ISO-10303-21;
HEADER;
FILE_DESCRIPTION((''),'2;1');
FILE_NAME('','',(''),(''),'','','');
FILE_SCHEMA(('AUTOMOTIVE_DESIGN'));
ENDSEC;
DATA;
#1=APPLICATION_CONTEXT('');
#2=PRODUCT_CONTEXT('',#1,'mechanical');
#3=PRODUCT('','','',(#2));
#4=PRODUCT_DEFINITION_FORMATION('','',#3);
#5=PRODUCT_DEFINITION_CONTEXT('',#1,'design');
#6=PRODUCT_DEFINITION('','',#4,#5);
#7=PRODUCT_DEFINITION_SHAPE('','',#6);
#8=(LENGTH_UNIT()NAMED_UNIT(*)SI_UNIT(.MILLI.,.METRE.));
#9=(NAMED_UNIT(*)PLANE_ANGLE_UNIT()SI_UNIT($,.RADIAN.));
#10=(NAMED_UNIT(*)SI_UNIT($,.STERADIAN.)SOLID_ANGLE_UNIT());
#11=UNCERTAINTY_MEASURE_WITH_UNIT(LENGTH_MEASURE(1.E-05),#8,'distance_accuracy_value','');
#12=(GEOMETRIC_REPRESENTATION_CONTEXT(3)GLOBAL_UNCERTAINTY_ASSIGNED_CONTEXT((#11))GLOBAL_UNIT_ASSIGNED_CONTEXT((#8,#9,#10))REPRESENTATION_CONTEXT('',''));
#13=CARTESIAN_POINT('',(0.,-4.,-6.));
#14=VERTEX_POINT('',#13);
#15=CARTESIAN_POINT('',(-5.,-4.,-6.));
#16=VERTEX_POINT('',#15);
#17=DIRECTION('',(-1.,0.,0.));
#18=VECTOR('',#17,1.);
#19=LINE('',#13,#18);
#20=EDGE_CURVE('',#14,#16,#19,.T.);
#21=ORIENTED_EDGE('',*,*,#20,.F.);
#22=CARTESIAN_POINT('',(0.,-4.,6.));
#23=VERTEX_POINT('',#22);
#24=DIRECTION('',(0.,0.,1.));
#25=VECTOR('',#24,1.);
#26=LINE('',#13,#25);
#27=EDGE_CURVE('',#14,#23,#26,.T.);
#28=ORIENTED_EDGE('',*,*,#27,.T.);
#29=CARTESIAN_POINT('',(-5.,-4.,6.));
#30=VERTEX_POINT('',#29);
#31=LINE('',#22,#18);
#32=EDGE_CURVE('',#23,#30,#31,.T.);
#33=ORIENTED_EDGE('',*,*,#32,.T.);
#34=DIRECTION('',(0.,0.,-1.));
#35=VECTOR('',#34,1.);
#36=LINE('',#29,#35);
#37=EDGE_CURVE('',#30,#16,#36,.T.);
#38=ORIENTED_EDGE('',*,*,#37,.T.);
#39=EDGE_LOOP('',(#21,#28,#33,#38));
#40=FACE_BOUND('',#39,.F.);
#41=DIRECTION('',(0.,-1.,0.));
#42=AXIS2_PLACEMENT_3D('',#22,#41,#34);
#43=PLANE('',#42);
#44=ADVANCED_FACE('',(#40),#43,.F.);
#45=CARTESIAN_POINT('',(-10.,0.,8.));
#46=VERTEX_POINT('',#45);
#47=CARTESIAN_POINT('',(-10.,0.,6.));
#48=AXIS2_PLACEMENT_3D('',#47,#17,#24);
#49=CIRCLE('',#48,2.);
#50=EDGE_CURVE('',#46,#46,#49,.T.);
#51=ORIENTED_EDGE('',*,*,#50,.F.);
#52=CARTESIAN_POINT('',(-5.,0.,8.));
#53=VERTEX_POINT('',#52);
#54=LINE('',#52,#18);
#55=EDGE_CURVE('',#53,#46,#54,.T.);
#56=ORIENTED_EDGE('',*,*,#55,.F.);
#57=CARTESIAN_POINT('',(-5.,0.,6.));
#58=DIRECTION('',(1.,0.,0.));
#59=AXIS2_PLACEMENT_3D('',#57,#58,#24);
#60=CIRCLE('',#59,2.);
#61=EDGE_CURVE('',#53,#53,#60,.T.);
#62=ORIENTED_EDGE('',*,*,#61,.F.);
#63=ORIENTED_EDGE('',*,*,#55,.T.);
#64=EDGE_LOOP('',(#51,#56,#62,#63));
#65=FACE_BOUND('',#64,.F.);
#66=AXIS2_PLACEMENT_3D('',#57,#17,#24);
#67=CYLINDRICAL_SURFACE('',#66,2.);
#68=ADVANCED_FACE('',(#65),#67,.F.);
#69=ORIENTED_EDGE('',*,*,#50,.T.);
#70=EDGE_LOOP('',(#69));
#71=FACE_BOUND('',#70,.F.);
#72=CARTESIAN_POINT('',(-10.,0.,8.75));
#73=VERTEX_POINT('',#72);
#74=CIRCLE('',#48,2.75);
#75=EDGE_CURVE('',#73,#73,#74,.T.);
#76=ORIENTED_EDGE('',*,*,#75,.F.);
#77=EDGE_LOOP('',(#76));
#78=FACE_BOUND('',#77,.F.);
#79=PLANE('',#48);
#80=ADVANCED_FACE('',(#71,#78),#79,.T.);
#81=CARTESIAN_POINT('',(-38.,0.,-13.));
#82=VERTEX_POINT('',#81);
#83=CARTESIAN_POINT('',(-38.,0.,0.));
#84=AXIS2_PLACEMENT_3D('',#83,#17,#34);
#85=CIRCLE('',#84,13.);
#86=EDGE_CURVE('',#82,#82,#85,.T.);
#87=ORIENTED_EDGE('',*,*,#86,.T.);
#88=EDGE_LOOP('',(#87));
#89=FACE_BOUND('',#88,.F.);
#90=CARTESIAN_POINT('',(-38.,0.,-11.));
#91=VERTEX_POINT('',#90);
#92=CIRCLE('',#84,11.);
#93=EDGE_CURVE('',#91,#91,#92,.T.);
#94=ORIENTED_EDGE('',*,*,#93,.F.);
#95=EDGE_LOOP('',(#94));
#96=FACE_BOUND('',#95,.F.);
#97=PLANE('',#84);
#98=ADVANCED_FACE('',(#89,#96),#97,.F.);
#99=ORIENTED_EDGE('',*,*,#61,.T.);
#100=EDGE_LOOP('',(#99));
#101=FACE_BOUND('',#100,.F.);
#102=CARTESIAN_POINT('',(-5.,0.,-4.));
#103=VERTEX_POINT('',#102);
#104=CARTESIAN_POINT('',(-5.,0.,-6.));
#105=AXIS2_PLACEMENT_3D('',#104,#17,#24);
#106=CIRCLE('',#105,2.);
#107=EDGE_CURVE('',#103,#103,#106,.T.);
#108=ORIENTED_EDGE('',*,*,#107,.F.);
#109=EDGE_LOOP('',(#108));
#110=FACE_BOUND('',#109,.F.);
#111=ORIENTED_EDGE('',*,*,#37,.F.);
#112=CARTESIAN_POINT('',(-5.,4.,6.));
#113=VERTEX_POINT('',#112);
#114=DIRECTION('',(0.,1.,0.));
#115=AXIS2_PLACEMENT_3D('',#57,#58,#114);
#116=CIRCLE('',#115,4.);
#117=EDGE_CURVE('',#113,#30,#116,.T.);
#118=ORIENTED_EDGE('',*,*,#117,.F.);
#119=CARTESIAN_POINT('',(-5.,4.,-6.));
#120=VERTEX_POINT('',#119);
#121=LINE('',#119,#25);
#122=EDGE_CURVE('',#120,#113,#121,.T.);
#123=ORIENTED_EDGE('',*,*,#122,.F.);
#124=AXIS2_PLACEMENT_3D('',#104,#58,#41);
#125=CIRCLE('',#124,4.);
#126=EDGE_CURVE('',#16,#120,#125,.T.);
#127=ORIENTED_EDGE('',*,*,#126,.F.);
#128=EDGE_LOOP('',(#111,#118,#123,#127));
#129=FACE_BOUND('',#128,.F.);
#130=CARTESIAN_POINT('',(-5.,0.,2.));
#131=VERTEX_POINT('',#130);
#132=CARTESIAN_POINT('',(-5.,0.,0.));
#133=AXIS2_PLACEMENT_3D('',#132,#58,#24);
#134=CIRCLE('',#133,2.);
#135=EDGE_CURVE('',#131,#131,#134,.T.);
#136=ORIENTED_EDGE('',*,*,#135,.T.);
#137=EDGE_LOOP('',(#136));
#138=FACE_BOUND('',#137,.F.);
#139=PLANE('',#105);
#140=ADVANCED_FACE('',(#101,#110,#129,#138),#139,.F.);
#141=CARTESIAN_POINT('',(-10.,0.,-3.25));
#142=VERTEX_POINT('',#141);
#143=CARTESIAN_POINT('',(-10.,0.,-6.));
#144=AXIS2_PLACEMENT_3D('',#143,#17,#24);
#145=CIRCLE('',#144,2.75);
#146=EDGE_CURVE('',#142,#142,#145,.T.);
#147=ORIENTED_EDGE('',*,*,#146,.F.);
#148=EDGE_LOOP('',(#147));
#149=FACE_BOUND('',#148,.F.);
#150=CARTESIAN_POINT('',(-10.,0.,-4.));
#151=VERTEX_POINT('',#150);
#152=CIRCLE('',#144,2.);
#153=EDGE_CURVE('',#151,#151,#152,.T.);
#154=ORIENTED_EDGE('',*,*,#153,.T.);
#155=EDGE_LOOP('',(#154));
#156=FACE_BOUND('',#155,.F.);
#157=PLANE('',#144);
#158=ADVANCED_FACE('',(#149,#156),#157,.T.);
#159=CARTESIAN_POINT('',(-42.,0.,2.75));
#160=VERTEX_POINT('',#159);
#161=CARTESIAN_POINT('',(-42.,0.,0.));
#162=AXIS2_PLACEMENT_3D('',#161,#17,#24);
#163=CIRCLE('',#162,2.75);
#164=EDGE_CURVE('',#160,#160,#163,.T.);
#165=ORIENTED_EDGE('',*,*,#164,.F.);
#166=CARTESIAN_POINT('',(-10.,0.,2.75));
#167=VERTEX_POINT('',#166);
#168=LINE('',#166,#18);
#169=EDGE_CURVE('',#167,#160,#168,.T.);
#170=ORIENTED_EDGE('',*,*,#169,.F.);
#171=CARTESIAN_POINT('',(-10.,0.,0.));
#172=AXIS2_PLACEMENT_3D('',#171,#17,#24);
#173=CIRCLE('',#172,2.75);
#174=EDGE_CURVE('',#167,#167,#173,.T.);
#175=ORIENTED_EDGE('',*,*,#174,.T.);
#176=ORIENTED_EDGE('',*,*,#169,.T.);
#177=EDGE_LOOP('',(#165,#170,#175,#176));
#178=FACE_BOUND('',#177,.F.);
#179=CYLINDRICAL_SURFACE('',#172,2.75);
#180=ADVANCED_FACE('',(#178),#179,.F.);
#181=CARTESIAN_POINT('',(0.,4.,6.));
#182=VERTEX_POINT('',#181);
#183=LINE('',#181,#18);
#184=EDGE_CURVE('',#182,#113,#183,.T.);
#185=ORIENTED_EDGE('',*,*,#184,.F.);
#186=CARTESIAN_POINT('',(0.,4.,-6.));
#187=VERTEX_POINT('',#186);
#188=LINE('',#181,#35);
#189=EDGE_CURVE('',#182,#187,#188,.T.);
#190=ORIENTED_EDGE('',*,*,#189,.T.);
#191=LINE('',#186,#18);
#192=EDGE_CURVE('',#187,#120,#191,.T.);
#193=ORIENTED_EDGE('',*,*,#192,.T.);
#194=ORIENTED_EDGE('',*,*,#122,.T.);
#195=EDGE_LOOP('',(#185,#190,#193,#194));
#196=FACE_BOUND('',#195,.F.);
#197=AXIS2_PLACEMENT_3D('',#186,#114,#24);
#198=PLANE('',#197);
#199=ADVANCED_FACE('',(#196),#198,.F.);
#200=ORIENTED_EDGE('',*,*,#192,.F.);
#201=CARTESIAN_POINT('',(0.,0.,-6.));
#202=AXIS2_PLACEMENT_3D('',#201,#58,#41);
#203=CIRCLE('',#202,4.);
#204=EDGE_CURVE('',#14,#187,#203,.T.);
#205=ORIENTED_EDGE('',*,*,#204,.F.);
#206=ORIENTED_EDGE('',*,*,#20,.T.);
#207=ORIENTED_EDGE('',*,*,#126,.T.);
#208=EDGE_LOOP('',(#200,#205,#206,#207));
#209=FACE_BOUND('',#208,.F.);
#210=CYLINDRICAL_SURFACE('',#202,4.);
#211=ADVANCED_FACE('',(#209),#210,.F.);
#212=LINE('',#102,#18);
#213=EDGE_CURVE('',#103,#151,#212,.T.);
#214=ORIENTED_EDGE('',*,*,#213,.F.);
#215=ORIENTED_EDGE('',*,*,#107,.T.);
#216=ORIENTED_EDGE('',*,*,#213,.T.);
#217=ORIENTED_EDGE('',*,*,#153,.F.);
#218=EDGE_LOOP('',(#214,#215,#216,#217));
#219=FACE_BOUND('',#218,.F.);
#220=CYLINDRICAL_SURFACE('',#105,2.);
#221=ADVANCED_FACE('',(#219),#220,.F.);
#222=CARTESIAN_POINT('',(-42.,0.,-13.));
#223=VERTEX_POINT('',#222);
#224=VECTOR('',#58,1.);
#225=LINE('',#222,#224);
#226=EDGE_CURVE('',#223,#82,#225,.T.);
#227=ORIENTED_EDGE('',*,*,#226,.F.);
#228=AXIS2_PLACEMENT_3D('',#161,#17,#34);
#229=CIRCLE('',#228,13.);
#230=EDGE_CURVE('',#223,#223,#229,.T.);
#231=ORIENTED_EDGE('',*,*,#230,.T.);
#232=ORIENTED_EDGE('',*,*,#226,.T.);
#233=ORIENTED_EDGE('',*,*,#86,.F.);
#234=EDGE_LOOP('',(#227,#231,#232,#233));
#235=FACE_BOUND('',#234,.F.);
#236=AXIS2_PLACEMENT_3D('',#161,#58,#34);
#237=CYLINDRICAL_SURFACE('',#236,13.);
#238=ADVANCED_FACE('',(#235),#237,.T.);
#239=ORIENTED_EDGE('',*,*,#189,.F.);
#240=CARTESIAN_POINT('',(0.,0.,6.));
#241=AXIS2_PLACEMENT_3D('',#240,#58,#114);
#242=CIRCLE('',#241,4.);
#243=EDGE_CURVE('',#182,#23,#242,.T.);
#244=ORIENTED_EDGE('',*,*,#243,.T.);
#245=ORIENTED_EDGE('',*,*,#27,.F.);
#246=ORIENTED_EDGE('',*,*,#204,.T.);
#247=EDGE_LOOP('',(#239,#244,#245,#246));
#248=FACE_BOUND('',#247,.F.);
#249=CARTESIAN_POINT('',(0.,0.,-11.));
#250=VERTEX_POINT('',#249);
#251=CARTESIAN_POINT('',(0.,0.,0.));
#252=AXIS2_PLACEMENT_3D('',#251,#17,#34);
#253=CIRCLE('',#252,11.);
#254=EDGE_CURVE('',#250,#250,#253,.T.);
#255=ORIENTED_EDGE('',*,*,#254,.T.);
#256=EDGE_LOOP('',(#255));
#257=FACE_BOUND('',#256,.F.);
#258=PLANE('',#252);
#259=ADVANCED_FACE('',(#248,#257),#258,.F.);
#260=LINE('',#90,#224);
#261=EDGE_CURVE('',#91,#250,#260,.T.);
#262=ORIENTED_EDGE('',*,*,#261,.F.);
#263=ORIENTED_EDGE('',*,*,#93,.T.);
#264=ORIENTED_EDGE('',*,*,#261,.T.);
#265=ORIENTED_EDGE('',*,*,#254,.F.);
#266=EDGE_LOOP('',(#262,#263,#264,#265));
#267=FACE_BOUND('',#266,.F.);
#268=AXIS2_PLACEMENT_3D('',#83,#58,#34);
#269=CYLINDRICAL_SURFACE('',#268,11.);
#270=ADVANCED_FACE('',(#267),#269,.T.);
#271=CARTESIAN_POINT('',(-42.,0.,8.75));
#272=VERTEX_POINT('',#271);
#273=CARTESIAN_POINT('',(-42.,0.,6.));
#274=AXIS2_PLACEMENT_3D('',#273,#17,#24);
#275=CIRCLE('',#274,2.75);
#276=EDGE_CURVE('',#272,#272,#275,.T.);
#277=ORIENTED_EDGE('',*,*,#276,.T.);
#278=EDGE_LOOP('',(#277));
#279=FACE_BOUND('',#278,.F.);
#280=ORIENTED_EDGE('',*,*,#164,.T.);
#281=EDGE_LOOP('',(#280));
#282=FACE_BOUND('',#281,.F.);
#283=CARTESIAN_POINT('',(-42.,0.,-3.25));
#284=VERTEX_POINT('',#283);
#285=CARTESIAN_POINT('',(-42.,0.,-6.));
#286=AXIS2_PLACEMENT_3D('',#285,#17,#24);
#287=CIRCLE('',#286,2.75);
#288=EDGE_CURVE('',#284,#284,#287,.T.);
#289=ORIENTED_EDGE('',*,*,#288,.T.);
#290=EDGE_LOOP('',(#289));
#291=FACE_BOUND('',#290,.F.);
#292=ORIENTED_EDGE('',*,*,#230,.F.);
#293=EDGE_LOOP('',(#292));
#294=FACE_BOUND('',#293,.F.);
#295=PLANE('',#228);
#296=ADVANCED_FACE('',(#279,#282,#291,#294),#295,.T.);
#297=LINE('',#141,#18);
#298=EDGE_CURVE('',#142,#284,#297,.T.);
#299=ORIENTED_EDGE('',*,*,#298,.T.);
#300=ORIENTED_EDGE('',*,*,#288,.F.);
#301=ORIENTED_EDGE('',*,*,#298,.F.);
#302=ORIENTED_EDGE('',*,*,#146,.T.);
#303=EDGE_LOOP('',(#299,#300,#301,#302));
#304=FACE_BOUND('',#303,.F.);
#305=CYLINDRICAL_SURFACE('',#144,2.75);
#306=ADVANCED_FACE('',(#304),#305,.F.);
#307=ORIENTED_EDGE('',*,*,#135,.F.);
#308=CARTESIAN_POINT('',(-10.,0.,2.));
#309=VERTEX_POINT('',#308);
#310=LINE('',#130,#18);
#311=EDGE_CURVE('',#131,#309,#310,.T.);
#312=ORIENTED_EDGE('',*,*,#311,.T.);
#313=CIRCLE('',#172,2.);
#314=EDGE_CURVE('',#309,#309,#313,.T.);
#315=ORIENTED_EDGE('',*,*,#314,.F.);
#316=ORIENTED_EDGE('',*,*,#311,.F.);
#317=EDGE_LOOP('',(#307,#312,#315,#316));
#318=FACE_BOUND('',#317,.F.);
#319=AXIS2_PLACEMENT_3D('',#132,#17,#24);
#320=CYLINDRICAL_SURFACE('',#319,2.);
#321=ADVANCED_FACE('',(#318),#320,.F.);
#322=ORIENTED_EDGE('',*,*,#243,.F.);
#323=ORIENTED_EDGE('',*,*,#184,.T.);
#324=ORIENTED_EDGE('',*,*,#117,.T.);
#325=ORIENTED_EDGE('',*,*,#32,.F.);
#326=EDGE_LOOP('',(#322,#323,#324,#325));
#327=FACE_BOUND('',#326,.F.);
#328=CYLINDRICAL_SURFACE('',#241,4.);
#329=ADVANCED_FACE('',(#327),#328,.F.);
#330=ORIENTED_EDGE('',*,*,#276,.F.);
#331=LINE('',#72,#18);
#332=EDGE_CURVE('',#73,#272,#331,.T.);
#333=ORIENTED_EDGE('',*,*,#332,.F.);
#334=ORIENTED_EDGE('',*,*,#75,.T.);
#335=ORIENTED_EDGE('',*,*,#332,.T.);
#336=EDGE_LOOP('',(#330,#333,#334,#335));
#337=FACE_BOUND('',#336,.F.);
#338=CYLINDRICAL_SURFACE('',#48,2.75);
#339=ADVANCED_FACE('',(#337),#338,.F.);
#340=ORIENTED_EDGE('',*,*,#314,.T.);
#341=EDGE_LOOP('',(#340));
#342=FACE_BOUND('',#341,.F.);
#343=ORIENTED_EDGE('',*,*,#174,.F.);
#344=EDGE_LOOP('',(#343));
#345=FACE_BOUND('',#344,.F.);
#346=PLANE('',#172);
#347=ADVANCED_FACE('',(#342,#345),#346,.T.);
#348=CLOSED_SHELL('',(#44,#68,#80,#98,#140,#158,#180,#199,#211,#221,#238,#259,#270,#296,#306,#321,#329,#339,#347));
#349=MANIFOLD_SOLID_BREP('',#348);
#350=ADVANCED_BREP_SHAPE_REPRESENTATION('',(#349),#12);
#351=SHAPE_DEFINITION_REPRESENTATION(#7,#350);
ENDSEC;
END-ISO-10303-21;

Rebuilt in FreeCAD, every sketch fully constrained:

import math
import FreeCAD as App
import Part
import Sketcher


def add_polygon(sketch, points):
    """Adds a closed chain of lines whose ends are joined by coincident constraints."""
    first, n = sketch.GeometryCount, len(points)
    for a, b in zip(points, points[1:] + points[:1]):
        sketch.addGeometry(Part.LineSegment(App.Vector(*a, 0), App.Vector(*b, 0)), False)
    for i in range(n):
        sketch.addConstraint(Sketcher.Constraint("Coincident", first + i, 2, first + (i + 1) % n, 1))

doc = App.newDocument("Part")
body = doc.addObject("PartDesign::Body", "Body")

sketch1 = body.newObject("Sketcher::SketchObject", "Sketch")
sketch1.AttachmentSupport = (doc.getObject("XZ_Plane"), [""])
sketch1.MapMode = "FlatFace"
add_polygon(sketch1, [(-42, 0), (0, 0), (0, -11), (-38, -11), (-38, -13), (-42, -13)])
sketch1.addConstraint([
    Sketcher.Constraint("Horizontal", 0),
    Sketcher.Constraint("Vertical", 1),
    Sketcher.Constraint("Horizontal", 2),
    Sketcher.Constraint("Vertical", 3),
    Sketcher.Constraint("Horizontal", 4),
    Sketcher.Constraint("Vertical", 5),
    Sketcher.Constraint("Coincident", 0, 2, -1, 1),
    Sketcher.Constraint("DistanceX", 2, 2, 2, 1, 38.0),
    Sketcher.Constraint("DistanceX", 4, 2, 4, 1, 4.0),
    Sketcher.Constraint("DistanceY", 1, 2, 1, 1, 11.0),
    Sketcher.Constraint("DistanceY", 3, 2, 3, 1, 2.0),
])
revolution = body.newObject("PartDesign::Revolution", "Revolution")
revolution.Profile = sketch1
revolution.ReferenceAxis = (sketch1, ["H_Axis"])
revolution.Angle = 360

sketch2 = body.newObject("Sketcher::SketchObject", "Sketch001")
sketch2.AttachmentSupport = (doc.getObject("XZ_Plane"), [""])
sketch2.MapMode = "FlatFace"
add_polygon(sketch2, [(0, 4), (0, 0), (-42, 0), (-42, 2.8), (-10, 2.8), (-10, 2), (-5, 2), (-5, 4)])
sketch2.addConstraint([
    Sketcher.Constraint("Vertical", 0),
    Sketcher.Constraint("Horizontal", 1),
    Sketcher.Constraint("Vertical", 2),
    Sketcher.Constraint("Horizontal", 3),
    Sketcher.Constraint("Vertical", 4),
    Sketcher.Constraint("Horizontal", 5),
    Sketcher.Constraint("Vertical", 6),
    Sketcher.Constraint("Horizontal", 7),
    Sketcher.Constraint("Coincident", 0, 2, -1, 1),
    Sketcher.Constraint("Equal", 5, 7),
    Sketcher.Constraint("DistanceX", 5, 1, 5, 2, 5.0),
    Sketcher.Constraint("DistanceY", 0, 2, 0, 1, 4.0),
    Sketcher.Constraint("DistanceX", 1, 2, 1, 1, 42.0),
    Sketcher.Constraint("DistanceY", 6, 1, 6, 2, 2.0),
    Sketcher.Constraint("DistanceY", 2, 1, 2, 2, 2.75),
])
groove = body.newObject("PartDesign::Groove", "Groove")
groove.Profile = sketch2
groove.ReferenceAxis = (sketch2, ["H_Axis"])
groove.Angle = 360
doc.recompute()

linearpattern = body.newObject("PartDesign::LinearPattern", "LinearPattern")
linearpattern.Originals = [groove]
linearpattern.Direction = (doc.getObject("Z_Axis"), [""])
linearpattern.Mode = "offset"
linearpattern.Offset = 6
linearpattern.Occurrences = 2
body.Tip = linearpattern
doc.recompute()

linearpattern2 = body.newObject("PartDesign::LinearPattern", "LinearPattern001")
linearpattern2.Originals = [groove]
linearpattern2.Direction = (doc.getObject("Z_Axis"), [""])
linearpattern2.Mode = "offset"
linearpattern2.Offset = 6
linearpattern2.Occurrences = 2
linearpattern2.Reversed = True
body.Tip = linearpattern2

sketch3 = body.newObject("Sketcher::SketchObject", "Sketch002")
sketch3.AttachmentSupport = (doc.getObject("YZ_Plane"), [""])
sketch3.MapMode = "FlatFace"
sketch3.addGeometry([
    Part.ArcOfCircle(Part.Circle(App.Vector(0, 6, 0), App.Vector(0, 0, 1), 4), math.radians(0), math.radians(180)),
    Part.LineSegment(App.Vector(-4, 6, 0), App.Vector(-4, -6, 0)),
    Part.ArcOfCircle(Part.Circle(App.Vector(0, -6, 0), App.Vector(0, 0, 1), 4), math.radians(180), math.radians(360)),
    Part.LineSegment(App.Vector(4, -6, 0), App.Vector(4, 6, 0)),
], False)
sketch3.addConstraint([
    Sketcher.Constraint("Tangent", 0, 2, 1, 1),
    Sketcher.Constraint("Tangent", 1, 2, 2, 1),
    Sketcher.Constraint("Tangent", 2, 2, 3, 1),
    Sketcher.Constraint("Tangent", 3, 2, 0, 1),
    Sketcher.Constraint("Vertical", 1),
    Sketcher.Constraint("Vertical", 3),
    Sketcher.Constraint("Symmetric", 0, 3, 2, 3, -1, 1),
    Sketcher.Constraint("Radius", 0, 4.0),
    Sketcher.Constraint("DistanceY", 1, 2, 1, 1, 12.0),
])
pocket1 = body.newObject("PartDesign::Pocket", "Pocket")
pocket1.Profile = sketch3
pocket1.Length = 5

doc.recompute()
